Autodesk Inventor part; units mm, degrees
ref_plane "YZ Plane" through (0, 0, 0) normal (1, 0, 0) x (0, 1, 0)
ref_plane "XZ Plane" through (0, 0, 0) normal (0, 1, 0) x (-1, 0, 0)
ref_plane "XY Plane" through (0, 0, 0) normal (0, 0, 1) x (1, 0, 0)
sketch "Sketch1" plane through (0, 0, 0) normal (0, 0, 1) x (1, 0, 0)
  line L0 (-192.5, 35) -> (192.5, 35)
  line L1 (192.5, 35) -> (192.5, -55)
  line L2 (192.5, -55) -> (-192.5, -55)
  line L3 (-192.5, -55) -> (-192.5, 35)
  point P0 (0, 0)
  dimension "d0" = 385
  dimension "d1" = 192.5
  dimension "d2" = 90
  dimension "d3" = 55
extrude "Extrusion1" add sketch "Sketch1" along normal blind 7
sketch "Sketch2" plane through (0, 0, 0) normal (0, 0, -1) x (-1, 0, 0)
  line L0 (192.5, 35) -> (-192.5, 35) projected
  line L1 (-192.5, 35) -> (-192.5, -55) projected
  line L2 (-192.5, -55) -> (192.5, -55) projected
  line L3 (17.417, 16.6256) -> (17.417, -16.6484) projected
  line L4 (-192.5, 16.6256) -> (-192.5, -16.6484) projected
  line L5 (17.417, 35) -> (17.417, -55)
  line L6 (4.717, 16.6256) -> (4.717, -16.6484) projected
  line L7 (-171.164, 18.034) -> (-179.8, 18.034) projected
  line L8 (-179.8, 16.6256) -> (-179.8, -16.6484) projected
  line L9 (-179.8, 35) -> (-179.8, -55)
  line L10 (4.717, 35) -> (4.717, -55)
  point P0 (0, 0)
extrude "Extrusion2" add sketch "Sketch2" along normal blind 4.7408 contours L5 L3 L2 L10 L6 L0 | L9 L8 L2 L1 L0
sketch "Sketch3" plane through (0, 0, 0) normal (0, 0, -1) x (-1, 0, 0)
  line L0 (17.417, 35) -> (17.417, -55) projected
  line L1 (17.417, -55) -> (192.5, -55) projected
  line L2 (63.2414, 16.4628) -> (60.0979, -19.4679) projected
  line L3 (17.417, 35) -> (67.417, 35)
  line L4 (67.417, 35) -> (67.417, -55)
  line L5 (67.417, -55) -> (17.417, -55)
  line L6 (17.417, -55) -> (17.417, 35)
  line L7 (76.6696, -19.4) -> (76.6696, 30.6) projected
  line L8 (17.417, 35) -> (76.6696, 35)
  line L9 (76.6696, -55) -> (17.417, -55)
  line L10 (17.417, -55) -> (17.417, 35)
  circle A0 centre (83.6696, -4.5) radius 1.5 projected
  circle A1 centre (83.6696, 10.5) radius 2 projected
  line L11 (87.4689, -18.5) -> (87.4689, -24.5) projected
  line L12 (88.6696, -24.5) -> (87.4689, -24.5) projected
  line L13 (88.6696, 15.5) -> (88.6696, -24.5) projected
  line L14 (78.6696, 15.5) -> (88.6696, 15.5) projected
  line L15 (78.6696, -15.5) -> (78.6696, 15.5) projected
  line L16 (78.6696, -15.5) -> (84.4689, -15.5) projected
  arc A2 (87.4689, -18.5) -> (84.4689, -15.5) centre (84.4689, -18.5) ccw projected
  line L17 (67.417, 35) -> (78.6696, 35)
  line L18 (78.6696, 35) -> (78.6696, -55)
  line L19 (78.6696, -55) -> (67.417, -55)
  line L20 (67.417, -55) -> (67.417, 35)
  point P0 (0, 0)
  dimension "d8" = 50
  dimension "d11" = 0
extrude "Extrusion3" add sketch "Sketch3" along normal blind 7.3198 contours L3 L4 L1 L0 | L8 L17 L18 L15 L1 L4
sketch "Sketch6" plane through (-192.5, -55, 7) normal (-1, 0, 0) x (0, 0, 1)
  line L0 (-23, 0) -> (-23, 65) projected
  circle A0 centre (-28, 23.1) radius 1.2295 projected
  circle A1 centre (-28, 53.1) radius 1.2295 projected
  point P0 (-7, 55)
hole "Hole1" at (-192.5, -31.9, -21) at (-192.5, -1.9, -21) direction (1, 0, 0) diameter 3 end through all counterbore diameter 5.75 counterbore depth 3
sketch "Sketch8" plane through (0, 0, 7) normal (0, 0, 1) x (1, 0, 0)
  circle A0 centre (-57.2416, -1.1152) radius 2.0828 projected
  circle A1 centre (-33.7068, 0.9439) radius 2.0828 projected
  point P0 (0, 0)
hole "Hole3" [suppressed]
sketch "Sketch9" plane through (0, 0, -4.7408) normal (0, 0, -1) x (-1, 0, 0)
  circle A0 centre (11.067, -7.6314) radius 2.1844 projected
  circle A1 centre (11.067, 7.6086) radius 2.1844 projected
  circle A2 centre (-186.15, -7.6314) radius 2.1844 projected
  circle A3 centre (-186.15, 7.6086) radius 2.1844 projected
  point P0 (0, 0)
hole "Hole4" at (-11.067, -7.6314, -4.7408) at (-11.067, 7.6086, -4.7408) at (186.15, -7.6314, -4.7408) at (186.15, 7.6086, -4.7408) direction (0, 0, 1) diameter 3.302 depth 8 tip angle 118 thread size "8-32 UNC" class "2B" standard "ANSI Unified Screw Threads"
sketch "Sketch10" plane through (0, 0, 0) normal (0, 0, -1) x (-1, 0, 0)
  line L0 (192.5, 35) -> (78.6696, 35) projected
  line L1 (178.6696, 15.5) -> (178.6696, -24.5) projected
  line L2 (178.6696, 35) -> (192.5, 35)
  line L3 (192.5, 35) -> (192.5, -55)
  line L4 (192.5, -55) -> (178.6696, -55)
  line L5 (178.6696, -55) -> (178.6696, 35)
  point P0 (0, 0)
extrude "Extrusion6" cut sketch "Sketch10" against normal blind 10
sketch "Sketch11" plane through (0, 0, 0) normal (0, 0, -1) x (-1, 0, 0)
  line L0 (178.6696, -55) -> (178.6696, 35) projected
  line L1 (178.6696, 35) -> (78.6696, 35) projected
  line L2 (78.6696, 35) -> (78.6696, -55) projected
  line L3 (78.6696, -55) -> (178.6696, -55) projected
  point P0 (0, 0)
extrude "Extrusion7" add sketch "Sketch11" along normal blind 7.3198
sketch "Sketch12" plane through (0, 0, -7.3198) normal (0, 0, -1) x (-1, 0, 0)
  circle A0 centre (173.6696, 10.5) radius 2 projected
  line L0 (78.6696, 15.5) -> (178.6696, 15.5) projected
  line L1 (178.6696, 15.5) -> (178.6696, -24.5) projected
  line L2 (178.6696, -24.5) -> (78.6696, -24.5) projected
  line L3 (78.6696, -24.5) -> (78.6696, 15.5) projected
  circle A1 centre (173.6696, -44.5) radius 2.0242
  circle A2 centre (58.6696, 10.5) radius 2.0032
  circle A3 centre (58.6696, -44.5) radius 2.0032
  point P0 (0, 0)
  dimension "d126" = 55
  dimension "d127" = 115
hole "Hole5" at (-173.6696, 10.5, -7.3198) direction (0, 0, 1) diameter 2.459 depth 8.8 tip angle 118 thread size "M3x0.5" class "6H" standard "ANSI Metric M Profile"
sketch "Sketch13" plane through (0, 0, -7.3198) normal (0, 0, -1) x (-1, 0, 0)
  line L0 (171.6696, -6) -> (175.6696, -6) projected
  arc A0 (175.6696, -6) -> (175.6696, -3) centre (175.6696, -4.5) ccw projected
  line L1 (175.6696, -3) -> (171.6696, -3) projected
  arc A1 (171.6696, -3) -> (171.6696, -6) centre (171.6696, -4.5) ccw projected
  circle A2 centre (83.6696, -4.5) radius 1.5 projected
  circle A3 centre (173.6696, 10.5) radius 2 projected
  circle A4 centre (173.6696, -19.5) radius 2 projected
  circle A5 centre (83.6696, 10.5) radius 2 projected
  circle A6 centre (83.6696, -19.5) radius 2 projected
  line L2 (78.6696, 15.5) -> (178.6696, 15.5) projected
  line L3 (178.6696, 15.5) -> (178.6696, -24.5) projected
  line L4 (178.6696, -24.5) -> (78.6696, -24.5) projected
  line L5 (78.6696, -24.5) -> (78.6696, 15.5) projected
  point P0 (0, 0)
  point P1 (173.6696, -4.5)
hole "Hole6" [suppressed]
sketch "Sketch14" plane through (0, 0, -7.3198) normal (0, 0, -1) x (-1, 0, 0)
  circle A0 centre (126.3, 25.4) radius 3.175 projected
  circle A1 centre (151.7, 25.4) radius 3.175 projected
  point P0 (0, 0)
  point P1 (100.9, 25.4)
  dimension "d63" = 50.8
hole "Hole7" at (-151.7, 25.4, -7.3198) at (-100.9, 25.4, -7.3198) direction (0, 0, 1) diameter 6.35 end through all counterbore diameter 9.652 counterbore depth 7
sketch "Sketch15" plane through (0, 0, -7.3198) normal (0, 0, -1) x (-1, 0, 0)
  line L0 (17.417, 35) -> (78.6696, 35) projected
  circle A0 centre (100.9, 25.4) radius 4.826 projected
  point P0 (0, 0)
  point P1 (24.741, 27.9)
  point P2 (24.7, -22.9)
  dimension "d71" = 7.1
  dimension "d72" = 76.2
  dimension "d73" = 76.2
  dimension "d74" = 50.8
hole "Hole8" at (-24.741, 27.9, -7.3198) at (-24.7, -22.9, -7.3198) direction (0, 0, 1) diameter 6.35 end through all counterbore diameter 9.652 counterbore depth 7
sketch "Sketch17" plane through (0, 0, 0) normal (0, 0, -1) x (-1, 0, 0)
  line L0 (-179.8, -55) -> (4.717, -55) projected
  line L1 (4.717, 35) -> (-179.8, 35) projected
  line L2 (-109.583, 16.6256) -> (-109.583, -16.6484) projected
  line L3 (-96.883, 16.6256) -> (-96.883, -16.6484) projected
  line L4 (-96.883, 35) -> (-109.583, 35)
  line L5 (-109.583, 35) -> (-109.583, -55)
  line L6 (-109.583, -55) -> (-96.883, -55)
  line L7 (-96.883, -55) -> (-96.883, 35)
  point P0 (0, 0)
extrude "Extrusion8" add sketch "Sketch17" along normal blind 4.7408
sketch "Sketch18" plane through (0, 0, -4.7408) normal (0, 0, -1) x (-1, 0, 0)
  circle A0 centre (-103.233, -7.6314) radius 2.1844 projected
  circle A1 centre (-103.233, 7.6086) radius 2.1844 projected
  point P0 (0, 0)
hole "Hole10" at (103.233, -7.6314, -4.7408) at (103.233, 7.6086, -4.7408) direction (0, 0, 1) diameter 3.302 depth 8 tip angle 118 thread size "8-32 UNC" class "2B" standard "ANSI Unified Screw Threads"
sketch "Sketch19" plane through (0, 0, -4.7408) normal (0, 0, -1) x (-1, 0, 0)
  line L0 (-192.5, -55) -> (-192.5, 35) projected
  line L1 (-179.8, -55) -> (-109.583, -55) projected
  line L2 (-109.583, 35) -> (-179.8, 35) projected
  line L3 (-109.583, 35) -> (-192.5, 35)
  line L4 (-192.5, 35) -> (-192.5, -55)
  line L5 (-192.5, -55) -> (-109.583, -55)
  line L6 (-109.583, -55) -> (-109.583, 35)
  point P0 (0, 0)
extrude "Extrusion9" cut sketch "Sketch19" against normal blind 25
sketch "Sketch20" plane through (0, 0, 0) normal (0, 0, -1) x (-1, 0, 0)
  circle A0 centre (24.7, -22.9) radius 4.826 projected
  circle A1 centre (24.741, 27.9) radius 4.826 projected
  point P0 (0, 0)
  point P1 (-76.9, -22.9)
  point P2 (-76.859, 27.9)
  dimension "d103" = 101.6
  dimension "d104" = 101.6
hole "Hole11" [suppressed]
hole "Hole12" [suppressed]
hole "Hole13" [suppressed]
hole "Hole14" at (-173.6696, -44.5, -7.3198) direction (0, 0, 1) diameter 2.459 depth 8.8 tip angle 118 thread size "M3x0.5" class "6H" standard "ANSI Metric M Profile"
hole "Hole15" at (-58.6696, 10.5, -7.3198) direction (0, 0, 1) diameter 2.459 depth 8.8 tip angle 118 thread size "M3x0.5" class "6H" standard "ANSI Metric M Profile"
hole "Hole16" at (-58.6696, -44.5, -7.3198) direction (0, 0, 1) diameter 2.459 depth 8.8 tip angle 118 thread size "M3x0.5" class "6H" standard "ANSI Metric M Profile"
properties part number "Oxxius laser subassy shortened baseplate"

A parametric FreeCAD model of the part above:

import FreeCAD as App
import Part
import Sketcher

doc = App.newDocument("Part")
params = doc.addObject("Spreadsheet::Sheet", "Params")
for row, (alias, value) in enumerate([
    ("sketch1_width", "385 mm"),
    ("sketch1_height", "90 mm"),
    ("pad1_length", "7 mm"),
    ("sketch2_height", "90 mm"),
    ("sketch2_width", "12.7 mm"),
    ("pad2_length", "4.7408 mm"),
    ("sketch3_height", "90 mm"),
    ("pad3_length", "7.3198 mm"),
    ("sketch4_diameter", "3 mm"),
    ("hole_diameter", "3 mm"),
    ("hole_cbore_diameter", "5.75 mm"),
    ("hole_cbore_depth", "3 mm"),
    ("hole2_diameter", "3.302 mm"),
    ("hole2_depth", "8 mm"),
    ("sketch6_height", "90 mm"),
    ("pocket1_length", "10 mm"),
    ("sketch7_width", "100 mm"),
    ("sketch7_height", "90 mm"),
    ("pad4_length", "7.3198 mm"),
    ("hole3_diameter", "2.459 mm"),
    ("hole3_depth", "8.8 mm"),
    ("sketch9_diameter", "6.35 mm"),
    ("hole4_diameter", "6.35 mm"),
    ("hole4_cbore_diameter", "9.652 mm"),
    ("hole4_cbore_depth", "7 mm"),
    ("sketch10_diameter", "6.35 mm"),
    ("hole5_diameter", "6.35 mm"),
    ("hole5_cbore_diameter", "9.652 mm"),
    ("hole5_cbore_depth", "7 mm"),
    ("sketch11_height", "90 mm"),
    ("sketch11_width", "12.7 mm"),
    ("pad5_length", "4.7408 mm"),
    ("hole6_diameter", "3.302 mm"),
    ("hole6_depth", "8 mm"),
    ("sketch13_height", "90 mm"),
    ("pocket2_length", "25 mm"),
    ("hole7_diameter", "2.459 mm"),
    ("hole7_depth", "8.8 mm"),
    ("hole8_diameter", "2.459 mm"),
    ("hole8_depth", "8.8 mm"),
    ("hole9_diameter", "2.459 mm"),
    ("hole9_depth", "8.8 mm"),
], start=1):
    params.set(f"A{row}", alias)
    params.set(f"B{row}", "=" + value)
    params.setAlias(f"B{row}", alias)

body = doc.addObject("PartDesign::Body", "Body")

sketch1 = doc.addObject("Sketcher::SketchObject", "Sketch")
body.addObject(sketch1)
sketch1.AttachmentSupport = (doc.XY_Plane, [""])
sketch1.MapMode = "FlatFace"
sketch1.addGeometry([
    Part.LineSegment(App.Vector(192, 35, 0), App.Vector(-192, 35, 0)),
    Part.LineSegment(App.Vector(-192, 35, 0), App.Vector(-192, -55, 0)),
    Part.LineSegment(App.Vector(-192, -55, 0), App.Vector(192, -55, 0)),
    Part.LineSegment(App.Vector(192, -55, 0), App.Vector(192, 35, 0)),
], False)
sketch1.addConstraint([
    Sketcher.Constraint("Coincident", 0, 2, 1, 1),
    Sketcher.Constraint("Coincident", 1, 2, 2, 1),
    Sketcher.Constraint("Coincident", 2, 2, 3, 1),
    Sketcher.Constraint("Coincident", 3, 2, 0, 1),
    Sketcher.Constraint("Horizontal", 0),
    Sketcher.Constraint("Vertical", 1),
    Sketcher.Constraint("Horizontal", 2),
    Sketcher.Constraint("Vertical", 3),
    Sketcher.Constraint("DistanceX", 0, 2, 0, 1, 385.0),
    Sketcher.Constraint("DistanceY", 1, 2, 1, 1, 90.0),
    Sketcher.Constraint("DistanceY", 1, 2, -1, 1, 55.0),
    Sketcher.Constraint("DistanceX", 0, 2, -1, 1, 192.5),
])
sketch1.setExpression("Constraints[8]", "Params.sketch1_width")
sketch1.setExpression("Constraints[9]", "Params.sketch1_height")
pad1 = doc.addObject("PartDesign::Pad", "Pad")
body.addObject(pad1)
pad1.Profile = sketch1
pad1.setExpression("Length", "Params.pad1_length")

sketch2 = doc.addObject("Sketcher::SketchObject", "Sketch001")
body.addObject(sketch2)
sketch2.AttachmentSupport = (doc.XY_Plane, [""])
sketch2.MapMode = "FlatFace"
sketch2.addGeometry([
    Part.LineSegment(App.Vector(-17, -55, 0), App.Vector(-17, 35, 0)),
    Part.LineSegment(App.Vector(-17, 35, 0), App.Vector(-5, 35, 0)),
    Part.LineSegment(App.Vector(-5, 35, 0), App.Vector(-5, -55, 0)),
    Part.LineSegment(App.Vector(-5, -55, 0), App.Vector(-17, -55, 0)),
    Part.LineSegment(App.Vector(180, -55, 0), App.Vector(180, 35, 0)),
    Part.LineSegment(App.Vector(180, 35, 0), App.Vector(192, 35, 0)),
    Part.LineSegment(App.Vector(192, 35, 0), App.Vector(192, -55, 0)),
    Part.LineSegment(App.Vector(192, -55, 0), App.Vector(180, -55, 0)),
], False)
sketch2.addConstraint([
    Sketcher.Constraint("Coincident", 0, 2, 1, 1),
    Sketcher.Constraint("Coincident", 1, 2, 2, 1),
    Sketcher.Constraint("Coincident", 2, 2, 3, 1),
    Sketcher.Constraint("Coincident", 3, 2, 0, 1),
    Sketcher.Constraint("Coincident", 4, 2, 5, 1),
    Sketcher.Constraint("Coincident", 5, 2, 6, 1),
    Sketcher.Constraint("Coincident", 6, 2, 7, 1),
    Sketcher.Constraint("Coincident", 7, 2, 4, 1),
    Sketcher.Constraint("Vertical", 0),
    Sketcher.Constraint("Horizontal", 1),
    Sketcher.Constraint("Vertical", 2),
    Sketcher.Constraint("Horizontal", 3),
    Sketcher.Constraint("Vertical", 4),
    Sketcher.Constraint("Horizontal", 5),
    Sketcher.Constraint("Vertical", 6),
    Sketcher.Constraint("Horizontal", 7),
    Sketcher.Constraint("Horizontal", 1, 2, 4, 2),
    Sketcher.Constraint("Horizontal", 3, 2, 6, 2),
    Sketcher.Constraint("Equal", 3, 5),
    Sketcher.Constraint("DistanceY", 0, 1, 0, 2, 90.0),
    Sketcher.Constraint("DistanceX", 1, 1, 1, 2, 12.7),
    Sketcher.Constraint("DistanceY", -1, 1, 0, 2, 35.0),
    Sketcher.Constraint("DistanceX", -1, 1, 4, 2, 179.8),
    Sketcher.Constraint("DistanceX", 0, 2, -1, 1, 17.417),
])
sketch2.setExpression("Constraints[19]", "Params.sketch2_height")
sketch2.setExpression("Constraints[20]", "Params.sketch2_width")
pad2 = doc.addObject("PartDesign::Pad", "Pad001")
body.addObject(pad2)
pad2.Profile = sketch2
pad2.setExpression("Length", "Params.pad2_length")
pad2.Reversed = True

sketch3 = doc.addObject("Sketcher::SketchObject", "Sketch002")
body.addObject(sketch3)
sketch3.AttachmentSupport = (doc.XY_Plane, [""])
sketch3.MapMode = "FlatFace"
sketch3.addGeometry([
    Part.LineSegment(App.Vector(-17, 35, 0), App.Vector(-17, -55, 0)),
    Part.LineSegment(App.Vector(-17, -55, 0), App.Vector(-79, -55, 0)),
    Part.LineSegment(App.Vector(-79, -55, 0), App.Vector(-79, 35, 0)),
    Part.LineSegment(App.Vector(-79, 35, 0), App.Vector(-17, 35, 0)),
], False)
sketch3.addConstraint([
    Sketcher.Constraint("Coincident", 0, 2, 1, 1),
    Sketcher.Constraint("Coincident", 1, 2, 2, 1),
    Sketcher.Constraint("Coincident", 2, 2, 3, 1),
    Sketcher.Constraint("Coincident", 3, 2, 0, 1),
    Sketcher.Constraint("Vertical", 0),
    Sketcher.Constraint("Horizontal", 1),
    Sketcher.Constraint("Vertical", 2),
    Sketcher.Constraint("Horizontal", 3),
    Sketcher.Constraint("DistanceY", 0, 2, 0, 1, 90.0),
    Sketcher.Constraint("DistanceY", 0, 2, -1, 1, 55.0),
    Sketcher.Constraint("DistanceX", 1, 2, 1, 1, 61.2526),
    Sketcher.Constraint("DistanceX", 0, 2, -1, 1, 17.417),
])
sketch3.setExpression("Constraints[8]", "Params.sketch3_height")
pad3 = doc.addObject("PartDesign::Pad", "Pad002")
body.addObject(pad3)
pad3.Profile = sketch3
pad3.setExpression("Length", "Params.pad3_length")
pad3.Reversed = True

sketch4 = doc.addObject("Sketcher::SketchObject", "Sketch003")
body.addObject(sketch4)
sketch4.AttachmentSupport = (doc.YZ_Plane, [""])
sketch4.MapMode = "FlatFace"
sketch4.AttachmentOffset = App.Placement(App.Vector(0, 0, -192.5), App.Rotation())
sketch4.addGeometry([
    Part.Circle(App.Vector(-31.9, -21, 0), App.Vector(0, 0, 1), 1.5),
    Part.Circle(App.Vector(-1.9, -21, 0), App.Vector(0, 0, 1), 1.5),
], False)
sketch4.addConstraint([
    Sketcher.Constraint("Equal", 0, 1),
    Sketcher.Constraint("Horizontal", 0, 3, 1, 3),
    Sketcher.Constraint("Diameter", 0, 3.0),
    Sketcher.Constraint("DistanceY", 0, 3, -1, 1, 21.0),
    Sketcher.Constraint("DistanceX", 0, 3, 1, 3, 30.0),
    Sketcher.Constraint("DistanceX", 0, 3, -1, 1, 31.9),
])
sketch4.setExpression("Constraints[2]", "Params.sketch4_diameter")
doc.recompute()
hole = doc.addObject("PartDesign::Hole", "Hole")
body.addObject(hole)
hole.Profile = sketch4
hole.ThreadType = "None"
hole.setExpression("Diameter", "Params.hole_diameter")
hole.DepthType = "ThroughAll"
hole.HoleCutType = "Counterbore"
hole.setExpression("HoleCutDiameter", "Params.hole_cbore_diameter")
hole.setExpression("HoleCutDepth", "Params.hole_cbore_depth")
hole.Reversed = True

sketch5 = doc.addObject("Sketcher::SketchObject", "Sketch004")
body.addObject(sketch5)
sketch5.AttachmentSupport = (doc.XY_Plane, [""])
sketch5.MapMode = "FlatFace"
sketch5.AttachmentOffset = App.Placement(App.Vector(0, 0, -4.7408), App.Rotation())
sketch5.addGeometry([
    Part.Circle(App.Vector(-11.1, -7.6, 0), App.Vector(0, 0, 1), 1.7),
    Part.Circle(App.Vector(-11.1, 7.6, 0), App.Vector(0, 0, 1), 1.7),
    Part.Circle(App.Vector(186.2, -7.6, 0), App.Vector(0, 0, 1), 1.7),
    Part.Circle(App.Vector(186.2, 7.6, 0), App.Vector(0, 0, 1), 1.7),
], False)
sketch5.addConstraint([
    Sketcher.Constraint("Equal", 0, 1),
    Sketcher.Constraint("Equal", 1, 2),
    Sketcher.Constraint("Equal", 2, 3),
    Sketcher.Constraint("Horizontal", 0, 3, 2, 3),
    Sketcher.Constraint("Horizontal", 1, 3, 3, 3),
    Sketcher.Constraint("Vertical", 0, 3, 1, 3),
    Sketcher.Constraint("Vertical", 2, 3, 3, 3),
    Sketcher.Constraint("Diameter", 0, 3.302),
    Sketcher.Constraint("DistanceX", -1, 1, 2, 3, 186.15),
    Sketcher.Constraint("DistanceY", 0, 3, 1, 3, 15.24),
    Sketcher.Constraint("DistanceX", 0, 3, -1, 1, 11.067),
    Sketcher.Constraint("DistanceY", 0, 3, -1, 1, 7.6314),
])
doc.recompute()
hole2 = doc.addObject("PartDesign::Hole", "Hole001")
body.addObject(hole2)
hole2.Profile = sketch5
hole2.ThreadType = "None"
hole2.setExpression("Diameter", "Params.hole2_diameter")
hole2.DepthType = "Dimension"
hole2.setExpression("Depth", "Params.hole2_depth")
hole2.DrillPoint = "Angled"
hole2.DrillPointAngle = 118
hole2.Reversed = True

sketch6 = doc.addObject("Sketcher::SketchObject", "Sketch005")
body.addObject(sketch6)
sketch6.AttachmentSupport = (doc.XY_Plane, [""])
sketch6.MapMode = "FlatFace"
sketch6.addGeometry([
    Part.LineSegment(App.Vector(-192, -55, 0), App.Vector(-192, 35, 0)),
    Part.LineSegment(App.Vector(-192, 35, 0), App.Vector(-179, 35, 0)),
    Part.LineSegment(App.Vector(-179, 35, 0), App.Vector(-179, -55, 0)),
    Part.LineSegment(App.Vector(-179, -55, 0), App.Vector(-192, -55, 0)),
], False)
sketch6.addConstraint([
    Sketcher.Constraint("Coincident", 0, 2, 1, 1),
    Sketcher.Constraint("Coincident", 1, 2, 2, 1),
    Sketcher.Constraint("Coincident", 2, 2, 3, 1),
    Sketcher.Constraint("Coincident", 3, 2, 0, 1),
    Sketcher.Constraint("Vertical", 0),
    Sketcher.Constraint("Horizontal", 1),
    Sketcher.Constraint("Vertical", 2),
    Sketcher.Constraint("Horizontal", 3),
    Sketcher.Constraint("DistanceY", 0, 1, 0, 2, 90.0),
    Sketcher.Constraint("DistanceY", -1, 1, 0, 2, 35.0),
    Sketcher.Constraint("DistanceX", 0, 2, -1, 1, 192.5),
    Sketcher.Constraint("DistanceX", 1, 1, 1, 2, 13.8304),
])
sketch6.setExpression("Constraints[8]", "Params.sketch6_height")
pocket1 = doc.addObject("PartDesign::Pocket", "Pocket")
body.addObject(pocket1)
pocket1.Profile = sketch6
pocket1.setExpression("Length", "Params.pocket1_length")
pocket1.Reversed = True

sketch7 = doc.addObject("Sketcher::SketchObject", "Sketch006")
body.addObject(sketch7)
sketch7.AttachmentSupport = (doc.XY_Plane, [""])
sketch7.MapMode = "FlatFace"
sketch7.addGeometry([
    Part.LineSegment(App.Vector(-79, -55, 0), App.Vector(-179, -55, 0)),
    Part.LineSegment(App.Vector(-179, -55, 0), App.Vector(-179, 35, 0)),
    Part.LineSegment(App.Vector(-179, 35, 0), App.Vector(-79, 35, 0)),
    Part.LineSegment(App.Vector(-79, 35, 0), App.Vector(-79, -55, 0)),
], False)
sketch7.addConstraint([
    Sketcher.Constraint("Coincident", 0, 2, 1, 1),
    Sketcher.Constraint("Coincident", 1, 2, 2, 1),
    Sketcher.Constraint("Coincident", 2, 2, 3, 1),
    Sketcher.Constraint("Coincident", 3, 2, 0, 1),
    Sketcher.Constraint("Horizontal", 0),
    Sketcher.Constraint("Vertical", 1),
    Sketcher.Constraint("Horizontal", 2),
    Sketcher.Constraint("Vertical", 3),
    Sketcher.Constraint("DistanceX", 0, 2, 0, 1, 100.0),
    Sketcher.Constraint("DistanceY", 1, 1, 1, 2, 90.0),
    Sketcher.Constraint("DistanceY", 0, 2, -1, 1, 55.0),
    Sketcher.Constraint("DistanceX", 0, 2, -1, 1, 178.6696),
])
sketch7.setExpression("Constraints[8]", "Params.sketch7_width")
sketch7.setExpression("Constraints[9]", "Params.sketch7_height")
pad4 = doc.addObject("PartDesign::Pad", "Pad003")
body.addObject(pad4)
pad4.Profile = sketch7
pad4.setExpression("Length", "Params.pad4_length")
pad4.Reversed = True

sketch8 = doc.addObject("Sketcher::SketchObject", "Sketch007")
body.addObject(sketch8)
sketch8.AttachmentSupport = (doc.XY_Plane, [""])
sketch8.MapMode = "FlatFace"
sketch8.AttachmentOffset = App.Placement(App.Vector(0, 0, -7.3198), App.Rotation())
sketch8.addGeometry(Part.Circle(App.Vector(-173.7, 10.5, 0), App.Vector(0, 0, 1), 1.2), False)
sketch8.addConstraint([
    Sketcher.Constraint("Diameter", 0, 2.459),
    Sketcher.Constraint("DistanceY", -1, 1, 0, 3, 10.5),
    Sketcher.Constraint("DistanceX", 0, 3, -1, 1, 173.6696),
])
doc.recompute()
hole3 = doc.addObject("PartDesign::Hole", "Hole002")
body.addObject(hole3)
hole3.Profile = sketch8
hole3.ThreadType = "None"
hole3.setExpression("Diameter", "Params.hole3_diameter")
hole3.DepthType = "Dimension"
hole3.setExpression("Depth", "Params.hole3_depth")
hole3.DrillPoint = "Angled"
hole3.DrillPointAngle = 118
hole3.Reversed = True

sketch9 = doc.addObject("Sketcher::SketchObject", "Sketch008")
body.addObject(sketch9)
sketch9.AttachmentSupport = (doc.XY_Plane, [""])
sketch9.MapMode = "FlatFace"
sketch9.AttachmentOffset = App.Placement(App.Vector(0, 0, -7.3198), App.Rotation())
sketch9.addGeometry([
    Part.Circle(App.Vector(-151.7, 25.4, 0), App.Vector(0, 0, 1), 3.2),
    Part.Circle(App.Vector(-100.9, 25.4, 0), App.Vector(0, 0, 1), 3.2),
], False)
sketch9.addConstraint([
    Sketcher.Constraint("Equal", 0, 1),
    Sketcher.Constraint("Horizontal", 0, 3, 1, 3),
    Sketcher.Constraint("Diameter", 0, 6.35),
    Sketcher.Constraint("DistanceX", 0, 3, -1, 1, 151.7),
    Sketcher.Constraint("DistanceY", -1, 1, 0, 3, 25.4),
    Sketcher.Constraint("DistanceX", 1, 3, -1, 1, 100.9),
])
sketch9.setExpression("Constraints[2]", "Params.sketch9_diameter")
doc.recompute()
hole4 = doc.addObject("PartDesign::Hole", "Hole003")
body.addObject(hole4)
hole4.Profile = sketch9
hole4.ThreadType = "None"
hole4.setExpression("Diameter", "Params.hole4_diameter")
hole4.DepthType = "ThroughAll"
hole4.HoleCutType = "Counterbore"
hole4.setExpression("HoleCutDiameter", "Params.hole4_cbore_diameter")
hole4.setExpression("HoleCutDepth", "Params.hole4_cbore_depth")
hole4.Reversed = True

sketch10 = doc.addObject("Sketcher::SketchObject", "Sketch009")
body.addObject(sketch10)
sketch10.AttachmentSupport = (doc.XY_Plane, [""])
sketch10.MapMode = "FlatFace"
sketch10.AttachmentOffset = App.Placement(App.Vector(0, 0, -7.3198), App.Rotation())
sketch10.addGeometry([
    Part.Circle(App.Vector(-24.7, 27.9, 0), App.Vector(0, 0, 1), 3.2),
    Part.Circle(App.Vector(-24.7, -22.9, 0), App.Vector(0, 0, 1), 3.2),
], False)
sketch10.addConstraint([
    Sketcher.Constraint("Equal", 0, 1),
    Sketcher.Constraint("Diameter", 0, 6.35),
    Sketcher.Constraint("DistanceY", -1, 1, 0, 3, 27.9),
    Sketcher.Constraint("DistanceX", 1, 3, -1, 1, 24.7),
    Sketcher.Constraint("DistanceY", 1, 3, -1, 1, 22.9),
    Sketcher.Constraint("DistanceX", 0, 3, -1, 1, 24.741),
])
sketch10.setExpression("Constraints[1]", "Params.sketch10_diameter")
doc.recompute()
hole5 = doc.addObject("PartDesign::Hole", "Hole004")
body.addObject(hole5)
hole5.Profile = sketch10
hole5.ThreadType = "None"
hole5.setExpression("Diameter", "Params.hole5_diameter")
hole5.DepthType = "ThroughAll"
hole5.HoleCutType = "Counterbore"
hole5.setExpression("HoleCutDiameter", "Params.hole5_cbore_diameter")
hole5.setExpression("HoleCutDepth", "Params.hole5_cbore_depth")
hole5.Reversed = True

sketch11 = doc.addObject("Sketcher::SketchObject", "Sketch010")
body.addObject(sketch11)
sketch11.AttachmentSupport = (doc.XY_Plane, [""])
sketch11.MapMode = "FlatFace"
sketch11.addGeometry([
    Part.LineSegment(App.Vector(110, 35, 0), App.Vector(110, -55, 0)),
    Part.LineSegment(App.Vector(110, -55, 0), App.Vector(97, -55, 0)),
    Part.LineSegment(App.Vector(97, -55, 0), App.Vector(97, 35, 0)),
    Part.LineSegment(App.Vector(97, 35, 0), App.Vector(110, 35, 0)),
], False)
sketch11.addConstraint([
    Sketcher.Constraint("Coincident", 0, 2, 1, 1),
    Sketcher.Constraint("Coincident", 1, 2, 2, 1),
    Sketcher.Constraint("Coincident", 2, 2, 3, 1),
    Sketcher.Constraint("Coincident", 3, 2, 0, 1),
    Sketcher.Constraint("Vertical", 0),
    Sketcher.Constraint("Horizontal", 1),
    Sketcher.Constraint("Vertical", 2),
    Sketcher.Constraint("Horizontal", 3),
    Sketcher.Constraint("DistanceY", 0, 2, 0, 1, 90.0),
    Sketcher.Constraint("DistanceX", 1, 2, 1, 1, 12.7),
    Sketcher.Constraint("DistanceY", 0, 2, -1, 1, 55.0),
    Sketcher.Constraint("DistanceX", -1, 1, 0, 2, 109.583),
])
sketch11.setExpression("Constraints[8]", "Params.sketch11_height")
sketch11.setExpression("Constraints[9]", "Params.sketch11_width")
pad5 = doc.addObject("PartDesign::Pad", "Pad004")
body.addObject(pad5)
pad5.Profile = sketch11
pad5.setExpression("Length", "Params.pad5_length")
pad5.Reversed = True

sketch12 = doc.addObject("Sketcher::SketchObject", "Sketch011")
body.addObject(sketch12)
sketch12.AttachmentSupport = (doc.XY_Plane, [""])
sketch12.MapMode = "FlatFace"
sketch12.AttachmentOffset = App.Placement(App.Vector(0, 0, -4.7408), App.Rotation())
sketch12.addGeometry([
    Part.Circle(App.Vector(103.2, -7.6, 0), App.Vector(0, 0, 1), 1.7),
    Part.Circle(App.Vector(103.2, 7.6, 0), App.Vector(0, 0, 1), 1.7),
], False)
sketch12.addConstraint([
    Sketcher.Constraint("Equal", 0, 1),
    Sketcher.Constraint("Vertical", 0, 3, 1, 3),
    Sketcher.Constraint("Diameter", 0, 3.302),
    Sketcher.Constraint("DistanceY", 0, 3, 1, 3, 15.24),
    Sketcher.Constraint("DistanceX", -1, 1, 0, 3, 103.233),
    Sketcher.Constraint("DistanceY", 0, 3, -1, 1, 7.6314),
])
doc.recompute()
hole6 = doc.addObject("PartDesign::Hole", "Hole005")
body.addObject(hole6)
hole6.Profile = sketch12
hole6.ThreadType = "None"
hole6.setExpression("Diameter", "Params.hole6_diameter")
hole6.DepthType = "Dimension"
hole6.setExpression("Depth", "Params.hole6_depth")
hole6.DrillPoint = "Angled"
hole6.DrillPointAngle = 118
hole6.Reversed = True

sketch13 = doc.addObject("Sketcher::SketchObject", "Sketch012")
body.addObject(sketch13)
sketch13.AttachmentSupport = (doc.XY_Plane, [""])
sketch13.MapMode = "FlatFace"
sketch13.AttachmentOffset = App.Placement(App.Vector(0, 0, -4.7408), App.Rotation())
sketch13.addGeometry([
    Part.LineSegment(App.Vector(192, 35, 0), App.Vector(192, -55, 0)),
    Part.LineSegment(App.Vector(192, -55, 0), App.Vector(110, -55, 0)),
    Part.LineSegment(App.Vector(110, -55, 0), App.Vector(110, 35, 0)),
    Part.LineSegment(App.Vector(110, 35, 0), App.Vector(192, 35, 0)),
], False)
sketch13.addConstraint([
    Sketcher.Constraint("Coincident", 0, 2, 1, 1),
    Sketcher.Constraint("Coincident", 1, 2, 2, 1),
    Sketcher.Constraint("Coincident", 2, 2, 3, 1),
    Sketcher.Constraint("Coincident", 3, 2, 0, 1),
    Sketcher.Constraint("Vertical", 0),
    Sketcher.Constraint("Horizontal", 1),
    Sketcher.Constraint("Vertical", 2),
    Sketcher.Constraint("Horizontal", 3),
    Sketcher.Constraint("DistanceY", 0, 2, 0, 1, 90.0),
    Sketcher.Constraint("DistanceY", 0, 2, -1, 1, 55.0),
    Sketcher.Constraint("DistanceX", -1, 1, 0, 2, 192.5),
    Sketcher.Constraint("DistanceX", 1, 2, 1, 1, 82.917),
])
sketch13.setExpression("Constraints[8]", "Params.sketch13_height")
pocket2 = doc.addObject("PartDesign::Pocket", "Pocket001")
body.addObject(pocket2)
pocket2.Profile = sketch13
pocket2.setExpression("Length", "Params.pocket2_length")
pocket2.Reversed = True

sketch14 = doc.addObject("Sketcher::SketchObject", "Sketch013")
body.addObject(sketch14)
sketch14.AttachmentSupport = (doc.XY_Plane, [""])
sketch14.MapMode = "FlatFace"
sketch14.AttachmentOffset = App.Placement(App.Vector(0, 0, -7.3198), App.Rotation())
sketch14.addGeometry(Part.Circle(App.Vector(-173.7, -44.5, 0), App.Vector(0, 0, 1), 1.2), False)
sketch14.addConstraint([
    Sketcher.Constraint("Diameter", 0, 2.459),
    Sketcher.Constraint("DistanceY", 0, 3, -1, 1, 44.5),
    Sketcher.Constraint("DistanceX", 0, 3, -1, 1, 173.6696),
])
doc.recompute()
hole7 = doc.addObject("PartDesign::Hole", "Hole006")
body.addObject(hole7)
hole7.Profile = sketch14
hole7.ThreadType = "None"
hole7.setExpression("Diameter", "Params.hole7_diameter")
hole7.DepthType = "Dimension"
hole7.setExpression("Depth", "Params.hole7_depth")
hole7.DrillPoint = "Angled"
hole7.DrillPointAngle = 118
hole7.Reversed = True

sketch15 = doc.addObject("Sketcher::SketchObject", "Sketch014")
body.addObject(sketch15)
sketch15.AttachmentSupport = (doc.XY_Plane, [""])
sketch15.MapMode = "FlatFace"
sketch15.AttachmentOffset = App.Placement(App.Vector(0, 0, -7.3198), App.Rotation())
sketch15.addGeometry(Part.Circle(App.Vector(-58.7, 10.5, 0), App.Vector(0, 0, 1), 1.2), False)
sketch15.addConstraint([
    Sketcher.Constraint("Diameter", 0, 2.459),
    Sketcher.Constraint("DistanceY", -1, 1, 0, 3, 10.5),
    Sketcher.Constraint("DistanceX", 0, 3, -1, 1, 58.6696),
])
doc.recompute()
hole8 = doc.addObject("PartDesign::Hole", "Hole007")
body.addObject(hole8)
hole8.Profile = sketch15
hole8.ThreadType = "None"
hole8.setExpression("Diameter", "Params.hole8_diameter")
hole8.DepthType = "Dimension"
hole8.setExpression("Depth", "Params.hole8_depth")
hole8.DrillPoint = "Angled"
hole8.DrillPointAngle = 118
hole8.Reversed = True

sketch16 = doc.addObject("Sketcher::SketchObject", "Sketch015")
body.addObject(sketch16)
sketch16.AttachmentSupport = (doc.XY_Plane, [""])
sketch16.MapMode = "FlatFace"
sketch16.AttachmentOffset = App.Placement(App.Vector(0, 0, -7.3198), App.Rotation())
sketch16.addGeometry(Part.Circle(App.Vector(-58.7, -44.5, 0), App.Vector(0, 0, 1), 1.2), False)
sketch16.addConstraint([
    Sketcher.Constraint("Diameter", 0, 2.459),
    Sketcher.Constraint("DistanceY", 0, 3, -1, 1, 44.5),
    Sketcher.Constraint("DistanceX", 0, 3, -1, 1, 58.6696),
])
doc.recompute()
hole9 = doc.addObject("PartDesign::Hole", "Hole008")
body.addObject(hole9)
hole9.Profile = sketch16
hole9.ThreadType = "None"
hole9.setExpression("Diameter", "Params.hole9_diameter")
hole9.DepthType = "Dimension"
hole9.setExpression("Depth", "Params.hole9_depth")
hole9.DrillPoint = "Angled"
hole9.DrillPointAngle = 118
hole9.Reversed = True

doc.recompute()
